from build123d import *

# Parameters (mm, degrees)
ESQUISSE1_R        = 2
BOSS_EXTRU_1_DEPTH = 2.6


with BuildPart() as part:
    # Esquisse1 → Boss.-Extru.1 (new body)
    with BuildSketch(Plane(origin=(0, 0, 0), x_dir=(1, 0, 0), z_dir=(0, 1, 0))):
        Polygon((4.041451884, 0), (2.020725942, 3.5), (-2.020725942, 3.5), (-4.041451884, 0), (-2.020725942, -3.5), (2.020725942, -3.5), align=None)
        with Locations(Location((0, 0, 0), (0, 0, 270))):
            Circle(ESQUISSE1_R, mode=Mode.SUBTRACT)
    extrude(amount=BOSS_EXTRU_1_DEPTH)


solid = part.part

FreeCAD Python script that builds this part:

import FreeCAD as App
import Part
import Sketcher

V = App.Vector
Q = App.Units.Quantity

doc = App.newDocument("Part")
body = doc.addObject("PartDesign::Body", "Body")

# Sketch on XZ plane
sketch1 = body.newObject("Sketcher::SketchObject", "Sketch")
sketch1.AttachmentSupport = (doc.getObject("XZ_Plane"), [""])
sketch1.MapMode = "FlatFace"
sketch1.addGeometry([
    Part.LineSegment(V(4, 0, 0), V(2, -3.5, 0)),  # 0
    Part.LineSegment(V(2, -3.5, 0), V(-2, -3.5, 0)),  # 1
    Part.LineSegment(V(-2, -3.5, 0), V(-4, 0, 0)),  # 2
    Part.LineSegment(V(-4, 0, 0), V(-2, 3.5, 0)),  # 3
    Part.LineSegment(V(-2, 3.5, 0), V(2, 3.5, 0)),  # 4
    Part.LineSegment(V(2, 3.5, 0), V(4, 0, 0)),  # 5
    Part.Circle(V(0, 0, 0), V(0, 0, 1), 2),  # 6
], False)
sketch1.addConstraint([
    Sketcher.Constraint("Coincident", 0, 2, 1, 1),
    Sketcher.Constraint("Coincident", 1, 2, 2, 1),
    Sketcher.Constraint("Coincident", 2, 2, 3, 1),
    Sketcher.Constraint("Coincident", 3, 2, 4, 1),
    Sketcher.Constraint("Coincident", 4, 2, 5, 1),
    Sketcher.Constraint("Coincident", 5, 2, 0, 1),
    Sketcher.Constraint("Horizontal", 1),
    Sketcher.Constraint("Horizontal", 4),
    Sketcher.Constraint("Coincident", 6, 3, -1, 1),
    Sketcher.Constraint("Symmetric", 0, 2, 3, 2, -1, 1),
    Sketcher.Constraint("Symmetric", 2, 2, 5, 2, -1, 1),
    Sketcher.Constraint("PointOnObject", 2, 2, -1),
    Sketcher.Constraint("Parallel", 2, 5),
    Sketcher.Constraint("Vertical", 1, 2, 3, 2),
    Sketcher.Constraint("Diameter", 6, 4.0),
    Sketcher.Constraint("Angle", 0, Q("-120 deg")),
    Sketcher.Constraint("DistanceY", 1, 2, 3, 2, 7.0),
    Sketcher.Constraint("DistanceX", 1, 2, 1, 1, 4.041452),
])
pad1 = body.newObject("PartDesign::Pad", "Pad")
pad1.Profile = sketch1
pad1.Length = 2.6
pad1.Reversed = True

doc.recompute()
